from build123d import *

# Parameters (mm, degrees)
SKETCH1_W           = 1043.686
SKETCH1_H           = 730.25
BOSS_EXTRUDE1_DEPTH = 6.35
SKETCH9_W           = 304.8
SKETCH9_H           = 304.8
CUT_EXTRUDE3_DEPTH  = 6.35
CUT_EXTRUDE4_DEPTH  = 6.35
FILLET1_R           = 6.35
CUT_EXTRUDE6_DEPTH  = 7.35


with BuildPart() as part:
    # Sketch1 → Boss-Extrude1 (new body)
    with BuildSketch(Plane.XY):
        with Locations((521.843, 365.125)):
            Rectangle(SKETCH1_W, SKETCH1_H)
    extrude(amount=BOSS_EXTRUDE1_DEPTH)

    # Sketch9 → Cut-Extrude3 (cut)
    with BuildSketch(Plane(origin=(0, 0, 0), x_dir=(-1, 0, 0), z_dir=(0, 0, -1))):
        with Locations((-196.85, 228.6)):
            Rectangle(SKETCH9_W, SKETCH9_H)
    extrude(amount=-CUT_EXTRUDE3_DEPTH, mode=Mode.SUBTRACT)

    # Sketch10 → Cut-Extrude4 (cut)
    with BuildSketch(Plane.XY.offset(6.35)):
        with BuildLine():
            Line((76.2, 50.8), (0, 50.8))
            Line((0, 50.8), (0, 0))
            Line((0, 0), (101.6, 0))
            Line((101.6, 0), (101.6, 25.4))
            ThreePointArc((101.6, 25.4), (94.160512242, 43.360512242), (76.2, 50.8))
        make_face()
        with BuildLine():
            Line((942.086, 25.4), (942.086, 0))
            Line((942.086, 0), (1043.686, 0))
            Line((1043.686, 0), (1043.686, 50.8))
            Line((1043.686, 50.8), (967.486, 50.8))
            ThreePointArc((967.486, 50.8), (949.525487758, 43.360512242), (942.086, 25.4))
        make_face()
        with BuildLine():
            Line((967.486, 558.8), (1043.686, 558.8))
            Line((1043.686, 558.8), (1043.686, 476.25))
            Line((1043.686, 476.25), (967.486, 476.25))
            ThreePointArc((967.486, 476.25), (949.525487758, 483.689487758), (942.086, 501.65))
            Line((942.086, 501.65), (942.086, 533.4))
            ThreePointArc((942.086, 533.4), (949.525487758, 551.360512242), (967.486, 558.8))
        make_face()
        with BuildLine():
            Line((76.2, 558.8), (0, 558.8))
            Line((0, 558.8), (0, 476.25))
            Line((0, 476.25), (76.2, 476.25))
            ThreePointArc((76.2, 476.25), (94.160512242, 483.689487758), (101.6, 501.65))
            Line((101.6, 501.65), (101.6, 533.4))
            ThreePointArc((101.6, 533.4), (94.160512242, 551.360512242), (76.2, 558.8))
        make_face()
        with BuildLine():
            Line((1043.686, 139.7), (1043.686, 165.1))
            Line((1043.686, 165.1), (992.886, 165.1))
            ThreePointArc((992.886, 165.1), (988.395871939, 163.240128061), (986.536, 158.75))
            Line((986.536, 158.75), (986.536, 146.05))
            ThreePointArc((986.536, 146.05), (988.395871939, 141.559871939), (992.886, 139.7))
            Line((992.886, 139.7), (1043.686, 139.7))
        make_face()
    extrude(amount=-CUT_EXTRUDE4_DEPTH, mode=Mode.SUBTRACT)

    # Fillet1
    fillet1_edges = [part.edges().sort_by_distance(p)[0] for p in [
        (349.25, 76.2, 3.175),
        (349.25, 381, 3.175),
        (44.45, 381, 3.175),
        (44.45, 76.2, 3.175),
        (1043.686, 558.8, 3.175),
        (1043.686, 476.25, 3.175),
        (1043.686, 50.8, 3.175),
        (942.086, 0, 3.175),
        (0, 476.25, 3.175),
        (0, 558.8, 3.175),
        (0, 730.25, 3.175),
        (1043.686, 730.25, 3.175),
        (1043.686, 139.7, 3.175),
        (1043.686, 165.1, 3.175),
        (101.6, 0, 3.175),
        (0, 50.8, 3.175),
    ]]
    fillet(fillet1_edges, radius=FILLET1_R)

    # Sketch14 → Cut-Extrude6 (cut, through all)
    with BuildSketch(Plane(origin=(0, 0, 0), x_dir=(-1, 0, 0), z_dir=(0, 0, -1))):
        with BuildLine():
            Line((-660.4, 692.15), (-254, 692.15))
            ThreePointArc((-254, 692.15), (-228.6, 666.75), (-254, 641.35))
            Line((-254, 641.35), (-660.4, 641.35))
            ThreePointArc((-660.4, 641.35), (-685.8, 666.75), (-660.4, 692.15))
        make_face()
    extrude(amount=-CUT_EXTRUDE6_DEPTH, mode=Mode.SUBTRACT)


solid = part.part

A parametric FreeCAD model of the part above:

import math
import FreeCAD as App
import Part
import Sketcher

V = App.Vector
Q = App.Units.Quantity


def edges_at(feature, points):
    """Names of the edges that pass closest to the given points."""
    edges = feature.Shape.Edges
    near = lambda p: min(range(len(edges)), key=lambda i: edges[i].distToShape(Part.Vertex(*p))[0])
    return sorted({f"Edge{near(p) + 1}" for p in points})

doc = App.newDocument("Part")
params = doc.addObject("Spreadsheet::Sheet", "Params")
for row, (alias, value) in enumerate([
    ("sketch1_width", "41.09 in"),
    ("sketch1_height", "28.75 in"),
    ("pad1_length", "0.25 in"),
    ("sketch2_width", "12 in"),
    ("pocket1_length", "0.25 in"),
    ("sketch3_radius", "1 in"),
    ("sketch3_width", "3 in"),
    ("sketch3_width2", "2 in"),
    ("sketch3_radius2", "0.25 in"),
    ("sketch3_height", "1.25 in"),
    ("pocket2_length", "0.25 in"),
    ("fillet_radius", "0.25 in"),
    ("sketch4_radius", "1 in"),
    ("sketch4_width", "16 in"),
], start=1):
    params.set(f"A{row}", alias)
    params.set(f"B{row}", "=" + value)
    params.setAlias(f"B{row}", alias)

body = doc.addObject("PartDesign::Body", "Body")

sketch1 = body.newObject("Sketcher::SketchObject", "Sketch")
sketch1.AttachmentSupport = (doc.getObject("XY_Plane"), [""])
sketch1.MapMode = "FlatFace"
sketch1.addGeometry([
    Part.LineSegment(V(0, 730.25, 0), V(0, 0, 0)),
    Part.LineSegment(V(0, 0, 0), V(1043.686, 0, 0)),
    Part.LineSegment(V(1043.686, 0, 0), V(1043.686, 730.25, 0)),
    Part.LineSegment(V(1043.686, 730.25, 0), V(0, 730.25, 0)),
], False)
sketch1.addConstraint([
    Sketcher.Constraint("Coincident", 0, 2, 1, 1),
    Sketcher.Constraint("Coincident", 1, 2, 2, 1),
    Sketcher.Constraint("Coincident", 2, 2, 3, 1),
    Sketcher.Constraint("Coincident", 3, 2, 0, 1),
    Sketcher.Constraint("Vertical", 0),
    Sketcher.Constraint("Horizontal", 1),
    Sketcher.Constraint("Vertical", 2),
    Sketcher.Constraint("Horizontal", 3),
    Sketcher.Constraint("Coincident", 0, 2, -1, 1),
    Sketcher.Constraint("DistanceX", 1, 1, 1, 2, Q("41.09 in")),
    Sketcher.Constraint("DistanceY", 0, 2, 0, 1, Q("28.75 in")),
])
sketch1.setExpression("Constraints[9]", "Params.sketch1_width")
sketch1.setExpression("Constraints[10]", "Params.sketch1_height")
pad1 = body.newObject("PartDesign::Pad", "Pad")
pad1.Profile = sketch1
pad1.setExpression("Length", "Params.pad1_length")

sketch2 = body.newObject("Sketcher::SketchObject", "Sketch001")
sketch2.AttachmentSupport = (doc.getObject("XY_Plane"), [""])
sketch2.MapMode = "FlatFace"
sketch2.addGeometry([
    Part.LineSegment(V(349.25, 381, 0), V(349.25, 76.2, 0)),
    Part.LineSegment(V(349.25, 76.2, 0), V(44.45, 76.2, 0)),
    Part.LineSegment(V(44.45, 76.2, 0), V(44.45, 381, 0)),
    Part.LineSegment(V(44.45, 381, 0), V(349.25, 381, 0)),
], False)
sketch2.addConstraint([
    Sketcher.Constraint("Coincident", 0, 2, 1, 1),
    Sketcher.Constraint("Coincident", 1, 2, 2, 1),
    Sketcher.Constraint("Coincident", 2, 2, 3, 1),
    Sketcher.Constraint("Coincident", 3, 2, 0, 1),
    Sketcher.Constraint("Vertical", 0),
    Sketcher.Constraint("Horizontal", 1),
    Sketcher.Constraint("Vertical", 2),
    Sketcher.Constraint("Horizontal", 3),
    Sketcher.Constraint("Equal", 3, 0),
    Sketcher.Constraint("DistanceX", 1, 2, 1, 1, Q("12 in")),
    Sketcher.Constraint("DistanceY", -1, 1, 0, 2, Q("3 in")),
    Sketcher.Constraint("DistanceX", -1, 1, 0, 2, Q("13.75 in")),
])
sketch2.setExpression("Constraints[9]", "Params.sketch2_width")
pocket1 = body.newObject("PartDesign::Pocket", "Pocket")
pocket1.Profile = sketch2
pocket1.setExpression("Length", "Params.pocket1_length")
pocket1.Reversed = True

sketch3 = body.newObject("Sketcher::SketchObject", "Sketch002")
sketch3.AttachmentSupport = (doc.getObject("XY_Plane"), [""])
sketch3.MapMode = "FlatFace"
sketch3.AttachmentOffset = App.Placement(V(0, 0, 0.25 * 25.4), App.Rotation())
sketch3.addGeometry([
    Part.LineSegment(V(76.2, 50.8, 0), V(0, 50.8, 0)),
    Part.LineSegment(V(0, 50.8, 0), V(0, 0, 0)),
    Part.LineSegment(V(0, 0, 0), V(101.6, 0, 0)),
    Part.LineSegment(V(101.6, 0, 0), V(101.6, 25.4, 0)),
    Part.ArcOfCircle(Part.Circle(V(76.2, 25.4, 0), V(0, 0, 1), 25.4), math.radians(0), math.radians(90)),
    Part.LineSegment(V(942.086, 25.4, 0), V(942.086, 0, 0)),
    Part.LineSegment(V(942.086, 0, 0), V(1043.686, 0, 0)),
    Part.LineSegment(V(1043.686, 0, 0), V(1043.686, 50.8, 0)),
    Part.LineSegment(V(1043.686, 50.8, 0), V(967.486, 50.8, 0)),
    Part.ArcOfCircle(Part.Circle(V(967.486, 25.4, 0), V(0, 0, 1), 25.4), math.radians(90), math.radians(180)),
    Part.LineSegment(V(1043.686, 558.8, 0), V(967.486, 558.8, 0)),
    Part.ArcOfCircle(Part.Circle(V(967.486, 533.4, 0), V(0, 0, 1), 25.4), math.radians(90), math.radians(180)),
    Part.LineSegment(V(942.086, 533.4, 0), V(942.086, 501.65, 0)),
    Part.ArcOfCircle(Part.Circle(V(967.486, 501.65, 0), V(0, 0, 1), 25.4), math.radians(180), math.radians(270)),
    Part.LineSegment(V(967.486, 476.25, 0), V(1043.686, 476.25, 0)),
    Part.LineSegment(V(1043.686, 476.25, 0), V(1043.686, 558.8, 0)),
    Part.LineSegment(V(76.2, 558.8, 0), V(0, 558.8, 0)),
    Part.LineSegment(V(0, 558.8, 0), V(0, 476.25, 0)),
    Part.LineSegment(V(0, 476.25, 0), V(76.2, 476.25, 0)),
    Part.ArcOfCircle(Part.Circle(V(76.2, 501.65, 0), V(0, 0, 1), 25.4), math.radians(-90), math.radians(0)),
    Part.LineSegment(V(101.6, 501.65, 0), V(101.6, 533.4, 0)),
    Part.ArcOfCircle(Part.Circle(V(76.2, 533.4, 0), V(0, 0, 1), 25.4), math.radians(0), math.radians(90)),
    Part.LineSegment(V(1043.686, 139.7, 0), V(1043.686, 165.1, 0)),
    Part.LineSegment(V(1043.686, 165.1, 0), V(992.886, 165.1, 0)),
    Part.ArcOfCircle(Part.Circle(V(992.886, 158.75, 0), V(0, 0, 1), 6.35), math.radians(90), math.radians(180)),
    Part.LineSegment(V(986.536, 158.75, 0), V(986.536, 146.05, 0)),
    Part.ArcOfCircle(Part.Circle(V(992.886, 146.05, 0), V(0, 0, 1), 6.35), math.radians(180), math.radians(270)),
    Part.LineSegment(V(992.886, 139.7, 0), V(1043.686, 139.7, 0)),
], False)
sketch3.addConstraint([
    Sketcher.Constraint("Coincident", 0, 2, 1, 1),
    Sketcher.Constraint("Coincident", 1, 2, 2, 1),
    Sketcher.Constraint("Coincident", 2, 2, 3, 1),
    Sketcher.Constraint("Tangent", 3, 2, 4, 1),
    Sketcher.Constraint("Tangent", 4, 2, 0, 1),
    Sketcher.Constraint("Coincident", 5, 2, 6, 1),
    Sketcher.Constraint("Coincident", 6, 2, 7, 1),
    Sketcher.Constraint("Coincident", 7, 2, 8, 1),
    Sketcher.Constraint("Tangent", 8, 2, 9, 1),
    Sketcher.Constraint("Tangent", 9, 2, 5, 1),
    Sketcher.Constraint("Tangent", 10, 2, 11, 1),
    Sketcher.Constraint("Tangent", 11, 2, 12, 1),
    Sketcher.Constraint("Tangent", 12, 2, 13, 1),
    Sketcher.Constraint("Tangent", 13, 2, 14, 1),
    Sketcher.Constraint("Coincident", 14, 2, 15, 1),
    Sketcher.Constraint("Coincident", 15, 2, 10, 1),
    Sketcher.Constraint("Coincident", 16, 2, 17, 1),
    Sketcher.Constraint("Coincident", 17, 2, 18, 1),
    Sketcher.Constraint("Tangent", 18, 2, 19, 1),
    Sketcher.Constraint("Tangent", 19, 2, 20, 1),
    Sketcher.Constraint("Tangent", 20, 2, 21, 1),
    Sketcher.Constraint("Tangent", 21, 2, 16, 1),
    Sketcher.Constraint("Coincident", 22, 2, 23, 1),
    Sketcher.Constraint("Tangent", 23, 2, 24, 1),
    Sketcher.Constraint("Tangent", 24, 2, 25, 1),
    Sketcher.Constraint("Tangent", 25, 2, 26, 1),
    Sketcher.Constraint("Tangent", 26, 2, 27, 1),
    Sketcher.Constraint("Coincident", 27, 2, 22, 1),
    Sketcher.Constraint("Horizontal", 0),
    Sketcher.Constraint("Vertical", 1),
    Sketcher.Constraint("Horizontal", 2),
    Sketcher.Constraint("Vertical", 3),
    Sketcher.Constraint("Vertical", 5),
    Sketcher.Constraint("Horizontal", 6),
    Sketcher.Constraint("Vertical", 7),
    Sketcher.Constraint("Horizontal", 8),
    Sketcher.Constraint("Horizontal", 10),
    Sketcher.Constraint("Vertical", 12),
    Sketcher.Constraint("Horizontal", 14),
    Sketcher.Constraint("Vertical", 15),
    Sketcher.Constraint("Horizontal", 16),
    Sketcher.Constraint("Vertical", 17),
    Sketcher.Constraint("Horizontal", 18),
    Sketcher.Constraint("Vertical", 20),
    Sketcher.Constraint("Vertical", 22),
    Sketcher.Constraint("Horizontal", 23),
    Sketcher.Constraint("Vertical", 25),
    Sketcher.Constraint("Horizontal", 27),
    Sketcher.Constraint("Coincident", 1, 2, -1, 1),
    Sketcher.Constraint("Equal", 4, 9),
    Sketcher.Constraint("Equal", 9, 11),
    Sketcher.Constraint("Equal", 11, 13),
    Sketcher.Constraint("Equal", 13, 19),
    Sketcher.Constraint("Equal", 19, 21),
    Sketcher.Constraint("Equal", 24, 26),
    Sketcher.Constraint("PointOnObject", 5, 2, -1),
    Sketcher.Constraint("PointOnObject", 16, 2, -2),
    Sketcher.Constraint("Horizontal", 4, 3, 9, 3),
    Sketcher.Constraint("Horizontal", 13, 3, 19, 3),
    Sketcher.Constraint("Horizontal", 11, 3, 21, 3),
    Sketcher.Constraint("Vertical", 9, 3, 11, 3),
    Sketcher.Constraint("Vertical", 4, 3, 19, 3),
    Sketcher.Constraint("Vertical", 7, 2, 14, 2),
    Sketcher.Constraint("Vertical", 15, 2, 22, 2),
    Sketcher.Constraint("Equal", 2, 6),
    Sketcher.Constraint("Equal", 27, 1),
    Sketcher.Constraint("Equal", 5, 22),
    Sketcher.Constraint("Radius", 4, Q("1 in")),
    Sketcher.Constraint("DistanceX", 0, 2, 0, 1, Q("3 in")),
    Sketcher.Constraint("DistanceX", 23, 2, 23, 1, Q("2 in")),
    Sketcher.Constraint("Radius", 24, Q("0.25 in")),
    Sketcher.Constraint("DistanceY", -1, 1, 11, 3, Q("21 in")),
    Sketcher.Constraint("DistanceY", 26, 3, 13, 3, Q("14 in")),
    Sketcher.Constraint("DistanceY", 12, 2, 12, 1, Q("1.25 in")),
    Sketcher.Constraint("DistanceX", -1, 1, 9, 3, Q("38.09 in")),
])
sketch3.setExpression("Constraints[67]", "Params.sketch3_radius")
sketch3.setExpression("Constraints[68]", "Params.sketch3_width")
sketch3.setExpression("Constraints[69]", "Params.sketch3_width2")
sketch3.setExpression("Constraints[70]", "Params.sketch3_radius2")
sketch3.setExpression("Constraints[73]", "Params.sketch3_height")
pocket2 = body.newObject("PartDesign::Pocket", "Pocket001")
pocket2.Profile = sketch3
pocket2.setExpression("Length", "Params.pocket2_length")
doc.recompute()

fillet = body.newObject("PartDesign::Fillet", "Fillet")
fillet.Base = (pocket2, edges_at(pocket2, [
    (349.25, 76.2, 3.175),
    (349.25, 381, 3.175),
    (44.45, 381, 3.175),
    (44.45, 76.2, 3.175),
    (1043.686, 558.8, 3.175),
    (1043.686, 476.25, 3.175),
    (1043.686, 50.8, 3.175),
    (942.086, 0, 3.175),
    (0, 476.25, 3.175),
    (0, 558.8, 3.175),
    (0, 730.25, 3.175),
    (1043.686, 730.25, 3.175),
    (1043.686, 139.7, 3.175),
    (1043.686, 165.1, 3.175),
    (101.6, 0, 3.175),
    (0, 50.8, 3.175),
]))
fillet.setExpression("Radius", "Params.fillet_radius")

sketch4 = body.newObject("Sketcher::SketchObject", "Sketch003")
sketch4.AttachmentSupport = (doc.getObject("XY_Plane"), [""])
sketch4.MapMode = "FlatFace"
sketch4.addGeometry([
    Part.LineSegment(V(254, 692.15, 0), V(660.4, 692.15, 0)),
    Part.ArcOfCircle(Part.Circle(V(660.4, 666.75, 0), V(0, 0, 1), 25.4), math.radians(-90), math.radians(90)),
    Part.LineSegment(V(660.4, 641.35, 0), V(254, 641.35, 0)),
    Part.ArcOfCircle(Part.Circle(V(254, 666.75, 0), V(0, 0, 1), 25.4), math.radians(90), math.radians(270)),
], False)
sketch4.addConstraint([
    Sketcher.Constraint("Tangent", 0, 2, 1, 2),
    Sketcher.Constraint("Tangent", 1, 1, 2, 1),
    Sketcher.Constraint("Tangent", 2, 2, 3, 2),
    Sketcher.Constraint("Tangent", 3, 1, 0, 1),
    Sketcher.Constraint("Horizontal", 0),
    Sketcher.Constraint("Horizontal", 2),
    Sketcher.Constraint("Radius", 1, Q("1 in")),
    Sketcher.Constraint("DistanceX", 0, 1, 0, 2, Q("16 in")),
    Sketcher.Constraint("DistanceX", -1, 1, 1, 3, Q("26 in")),
    Sketcher.Constraint("DistanceY", -1, 1, 1, 3, Q("26.25 in")),
])
sketch4.setExpression("Constraints[6]", "Params.sketch4_radius")
sketch4.setExpression("Constraints[7]", "Params.sketch4_width")
pocket3 = body.newObject("PartDesign::Pocket", "Pocket002")
pocket3.Profile = sketch4
pocket3.Type = "ThroughAll"
pocket3.Reversed = True

doc.recompute()
